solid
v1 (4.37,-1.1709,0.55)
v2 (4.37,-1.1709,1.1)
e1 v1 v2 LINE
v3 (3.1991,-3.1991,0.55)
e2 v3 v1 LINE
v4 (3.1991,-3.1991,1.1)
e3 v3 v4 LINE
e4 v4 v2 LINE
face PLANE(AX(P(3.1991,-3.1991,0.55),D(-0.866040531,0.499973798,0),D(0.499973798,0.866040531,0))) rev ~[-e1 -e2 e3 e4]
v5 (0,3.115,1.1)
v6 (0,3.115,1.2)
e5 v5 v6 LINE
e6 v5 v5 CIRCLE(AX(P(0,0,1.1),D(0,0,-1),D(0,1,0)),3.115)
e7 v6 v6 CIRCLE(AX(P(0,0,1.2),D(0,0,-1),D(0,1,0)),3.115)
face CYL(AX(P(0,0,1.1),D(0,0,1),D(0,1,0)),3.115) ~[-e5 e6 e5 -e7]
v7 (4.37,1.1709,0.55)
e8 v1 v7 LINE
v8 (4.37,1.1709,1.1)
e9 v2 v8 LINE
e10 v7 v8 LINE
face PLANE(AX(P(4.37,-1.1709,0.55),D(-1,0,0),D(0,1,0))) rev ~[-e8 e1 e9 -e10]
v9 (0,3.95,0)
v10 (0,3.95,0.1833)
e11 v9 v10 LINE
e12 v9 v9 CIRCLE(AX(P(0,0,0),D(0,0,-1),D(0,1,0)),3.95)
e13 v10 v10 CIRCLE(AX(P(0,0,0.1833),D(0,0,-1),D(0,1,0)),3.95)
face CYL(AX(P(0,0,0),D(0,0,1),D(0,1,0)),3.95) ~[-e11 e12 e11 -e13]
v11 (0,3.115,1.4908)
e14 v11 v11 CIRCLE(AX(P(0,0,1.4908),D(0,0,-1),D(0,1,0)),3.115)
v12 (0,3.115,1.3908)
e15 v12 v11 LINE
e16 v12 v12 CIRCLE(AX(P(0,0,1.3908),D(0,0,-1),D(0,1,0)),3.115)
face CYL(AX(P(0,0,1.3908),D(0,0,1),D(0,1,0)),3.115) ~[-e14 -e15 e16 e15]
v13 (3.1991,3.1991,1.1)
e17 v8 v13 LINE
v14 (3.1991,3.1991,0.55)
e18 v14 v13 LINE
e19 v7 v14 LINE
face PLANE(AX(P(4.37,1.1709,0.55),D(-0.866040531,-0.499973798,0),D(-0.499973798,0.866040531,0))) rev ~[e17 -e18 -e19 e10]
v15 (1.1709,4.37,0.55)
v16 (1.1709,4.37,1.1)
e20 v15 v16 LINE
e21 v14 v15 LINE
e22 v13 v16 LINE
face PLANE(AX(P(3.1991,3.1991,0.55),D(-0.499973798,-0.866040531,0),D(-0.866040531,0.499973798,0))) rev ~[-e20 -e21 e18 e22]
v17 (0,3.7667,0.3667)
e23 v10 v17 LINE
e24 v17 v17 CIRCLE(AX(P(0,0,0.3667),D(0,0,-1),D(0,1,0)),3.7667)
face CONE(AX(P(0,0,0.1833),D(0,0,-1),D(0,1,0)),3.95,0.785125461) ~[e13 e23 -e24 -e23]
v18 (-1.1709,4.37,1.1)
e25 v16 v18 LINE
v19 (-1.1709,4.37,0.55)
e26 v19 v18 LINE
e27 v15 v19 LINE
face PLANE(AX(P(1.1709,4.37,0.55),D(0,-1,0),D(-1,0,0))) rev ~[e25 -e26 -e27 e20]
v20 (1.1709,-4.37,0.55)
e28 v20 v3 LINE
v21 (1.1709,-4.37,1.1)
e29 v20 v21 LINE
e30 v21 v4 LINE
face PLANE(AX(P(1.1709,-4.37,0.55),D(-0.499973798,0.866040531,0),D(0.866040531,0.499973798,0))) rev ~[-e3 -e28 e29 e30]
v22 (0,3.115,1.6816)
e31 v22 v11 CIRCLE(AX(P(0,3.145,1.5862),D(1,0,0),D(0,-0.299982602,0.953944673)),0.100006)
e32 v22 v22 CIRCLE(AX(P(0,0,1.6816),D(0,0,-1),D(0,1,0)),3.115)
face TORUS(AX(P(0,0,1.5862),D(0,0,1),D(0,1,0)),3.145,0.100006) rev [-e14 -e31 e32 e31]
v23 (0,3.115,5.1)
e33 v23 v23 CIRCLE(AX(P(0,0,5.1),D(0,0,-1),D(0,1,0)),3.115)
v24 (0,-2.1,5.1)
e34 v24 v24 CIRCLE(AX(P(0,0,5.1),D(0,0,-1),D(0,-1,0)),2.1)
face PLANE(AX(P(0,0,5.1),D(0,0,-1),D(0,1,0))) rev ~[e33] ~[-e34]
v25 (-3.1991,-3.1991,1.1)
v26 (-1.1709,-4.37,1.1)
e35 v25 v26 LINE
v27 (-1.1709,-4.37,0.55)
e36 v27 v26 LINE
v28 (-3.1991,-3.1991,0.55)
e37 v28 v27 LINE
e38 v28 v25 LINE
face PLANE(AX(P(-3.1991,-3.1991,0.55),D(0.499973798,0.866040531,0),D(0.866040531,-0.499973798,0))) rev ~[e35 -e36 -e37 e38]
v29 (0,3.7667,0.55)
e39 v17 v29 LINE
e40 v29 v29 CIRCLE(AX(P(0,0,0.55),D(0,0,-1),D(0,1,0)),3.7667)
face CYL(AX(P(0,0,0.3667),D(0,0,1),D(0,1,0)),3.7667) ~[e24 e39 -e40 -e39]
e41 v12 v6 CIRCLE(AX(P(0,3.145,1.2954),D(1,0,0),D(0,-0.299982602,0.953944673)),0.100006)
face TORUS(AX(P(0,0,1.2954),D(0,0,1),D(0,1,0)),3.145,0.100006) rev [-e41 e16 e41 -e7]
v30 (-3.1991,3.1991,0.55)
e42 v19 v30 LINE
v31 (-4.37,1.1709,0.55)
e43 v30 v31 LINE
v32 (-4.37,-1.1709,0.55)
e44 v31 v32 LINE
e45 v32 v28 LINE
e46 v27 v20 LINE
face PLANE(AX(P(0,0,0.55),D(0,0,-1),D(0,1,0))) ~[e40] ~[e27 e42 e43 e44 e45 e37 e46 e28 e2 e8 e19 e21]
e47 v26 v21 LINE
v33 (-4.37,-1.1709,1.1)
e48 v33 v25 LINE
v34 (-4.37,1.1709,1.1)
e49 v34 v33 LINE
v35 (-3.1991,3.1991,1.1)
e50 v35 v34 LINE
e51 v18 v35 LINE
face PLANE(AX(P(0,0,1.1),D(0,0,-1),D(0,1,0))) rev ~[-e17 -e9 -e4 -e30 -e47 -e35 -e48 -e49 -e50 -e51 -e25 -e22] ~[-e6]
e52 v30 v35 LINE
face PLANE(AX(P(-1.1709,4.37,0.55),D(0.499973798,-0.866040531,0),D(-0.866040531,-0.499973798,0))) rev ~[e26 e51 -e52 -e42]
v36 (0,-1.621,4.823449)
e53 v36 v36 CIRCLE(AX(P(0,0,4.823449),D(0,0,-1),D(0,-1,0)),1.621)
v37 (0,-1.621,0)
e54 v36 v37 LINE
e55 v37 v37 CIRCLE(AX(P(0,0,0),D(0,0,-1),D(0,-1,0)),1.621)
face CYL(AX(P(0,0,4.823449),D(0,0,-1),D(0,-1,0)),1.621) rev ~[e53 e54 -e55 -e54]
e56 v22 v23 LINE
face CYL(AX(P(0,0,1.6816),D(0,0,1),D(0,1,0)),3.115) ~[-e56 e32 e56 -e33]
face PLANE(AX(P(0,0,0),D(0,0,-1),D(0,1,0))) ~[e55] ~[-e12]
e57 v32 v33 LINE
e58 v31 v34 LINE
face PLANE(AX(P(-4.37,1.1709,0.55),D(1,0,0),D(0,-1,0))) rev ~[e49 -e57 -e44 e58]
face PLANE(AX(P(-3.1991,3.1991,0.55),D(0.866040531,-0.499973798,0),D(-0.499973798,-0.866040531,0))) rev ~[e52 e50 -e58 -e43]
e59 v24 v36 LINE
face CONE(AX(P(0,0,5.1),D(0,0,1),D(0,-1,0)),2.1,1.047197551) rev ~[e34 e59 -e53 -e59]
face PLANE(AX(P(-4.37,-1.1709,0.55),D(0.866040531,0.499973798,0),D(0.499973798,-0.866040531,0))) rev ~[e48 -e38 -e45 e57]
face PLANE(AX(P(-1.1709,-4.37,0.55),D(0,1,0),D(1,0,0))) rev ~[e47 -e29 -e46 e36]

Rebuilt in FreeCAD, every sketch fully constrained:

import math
import FreeCAD as App
import Part
import Sketcher
Q = App.Units.Quantity


def add_polygon(sketch, points):
    """Adds a closed chain of lines whose ends are joined by coincident constraints."""
    first, n = sketch.GeometryCount, len(points)
    for a, b in zip(points, points[1:] + points[:1]):
        sketch.addGeometry(Part.LineSegment(App.Vector(*a, 0), App.Vector(*b, 0)), False)
    for i in range(n):
        sketch.addConstraint(Sketcher.Constraint("Coincident", first + i, 2, first + (i + 1) % n, 1))

doc = App.newDocument("Part")
body = doc.addObject("PartDesign::Body", "Body")

sketch1 = body.newObject("Sketcher::SketchObject", "Sketch")
sketch1.AttachmentSupport = (doc.getObject("YZ_Plane"), [""])
sketch1.MapMode = "FlatFace"
sketch1.addGeometry([
    Part.LineSegment(App.Vector(0, 5.1, 0), App.Vector(0, 0, 0)),
    Part.LineSegment(App.Vector(0, 0, 0), App.Vector(3.95, 0, 0)),
    Part.LineSegment(App.Vector(3.95, 0, 0), App.Vector(3.95, 0.1833, 0)),
    Part.LineSegment(App.Vector(3.95, 0.1833, 0), App.Vector(3.7667, 0.3667, 0)),
    Part.LineSegment(App.Vector(3.7667, 0.3667, 0), App.Vector(3.7667, 0.55, 0)),
    Part.LineSegment(App.Vector(3.7667, 0.55, 0), App.Vector(6.555, 0.55, 0)),
    Part.LineSegment(App.Vector(6.555, 0.55, 0), App.Vector(6.555, 1.1, 0)),
    Part.LineSegment(App.Vector(6.555, 1.1, 0), App.Vector(3.115, 1.1, 0)),
    Part.LineSegment(App.Vector(3.115, 1.1, 0), App.Vector(3.115, 1.2, 0)),
    Part.ArcOfCircle(Part.Circle(App.Vector(3.145, 1.2954, 0), App.Vector(0, 0, 1), 0.100006), math.radians(107.456558), math.radians(252.543442)),
    Part.LineSegment(App.Vector(3.115, 1.3908, 0), App.Vector(3.115, 1.4908, 0)),
    Part.ArcOfCircle(Part.Circle(App.Vector(3.145, 1.5862, 0), App.Vector(0, 0, 1), 0.100006), math.radians(107.456558), math.radians(252.543442)),
    Part.LineSegment(App.Vector(3.115, 1.6816, 0), App.Vector(3.115, 5.1, 0)),
    Part.LineSegment(App.Vector(3.115, 5.1, 0), App.Vector(0, 5.1, 0)),
], False)
sketch1.addConstraint([
    Sketcher.Constraint("Coincident", 0, 2, 1, 1),
    Sketcher.Constraint("Coincident", 1, 2, 2, 1),
    Sketcher.Constraint("Coincident", 2, 2, 3, 1),
    Sketcher.Constraint("Coincident", 3, 2, 4, 1),
    Sketcher.Constraint("Coincident", 4, 2, 5, 1),
    Sketcher.Constraint("Coincident", 5, 2, 6, 1),
    Sketcher.Constraint("Coincident", 6, 2, 7, 1),
    Sketcher.Constraint("Coincident", 7, 2, 8, 1),
    Sketcher.Constraint("Coincident", 8, 2, 9, 2),
    Sketcher.Constraint("Coincident", 9, 1, 10, 1),
    Sketcher.Constraint("Coincident", 10, 2, 11, 2),
    Sketcher.Constraint("Coincident", 11, 1, 12, 1),
    Sketcher.Constraint("Coincident", 12, 2, 13, 1),
    Sketcher.Constraint("Coincident", 13, 2, 0, 1),
    Sketcher.Constraint("Vertical", 0),
    Sketcher.Constraint("Horizontal", 1),
    Sketcher.Constraint("Vertical", 2),
    Sketcher.Constraint("Vertical", 4),
    Sketcher.Constraint("Horizontal", 5),
    Sketcher.Constraint("Vertical", 6),
    Sketcher.Constraint("Horizontal", 7),
    Sketcher.Constraint("Vertical", 8),
    Sketcher.Constraint("Vertical", 10),
    Sketcher.Constraint("Vertical", 12),
    Sketcher.Constraint("Horizontal", 13),
    Sketcher.Constraint("Coincident", 0, 2, -1, 1),
    Sketcher.Constraint("Equal", 9, 11),
    Sketcher.Constraint("Vertical", 9, 3, 11, 3),
    Sketcher.Constraint("Vertical", 8, 2, 9, 1),
    Sketcher.Constraint("Vertical", 10, 2, 11, 1),
    Sketcher.Constraint("Equal", 2, 4),
    Sketcher.Constraint("Equal", 8, 10),
    Sketcher.Constraint("Radius", 9, Q("0.1 mm")),
    Sketcher.Constraint("DistanceY", 8, 1, 8, 2, Q("0.1 mm")),
    Sketcher.Constraint("DistanceY", 6, 1, 6, 2, Q("0.55 mm")),
    Sketcher.Constraint("DistanceY", -1, 1, 6, 2, Q("1.1 mm")),
    Sketcher.Constraint("DistanceX", 7, 2, 9, 3, Q("0.03 mm")),
    Sketcher.Constraint("DistanceY", 0, 2, 0, 1, Q("5.1 mm")),
    Sketcher.Constraint("DistanceY", 2, 1, 2, 2, Q("0.1833 mm")),
    Sketcher.Constraint("DistanceX", 1, 1, 1, 2, Q("3.95 mm")),
    Sketcher.Constraint("DistanceX", 7, 2, 7, 1, Q("3.44 mm")),
    Sketcher.Constraint("DistanceX", 3, 2, 2, 2, Q("0.1833 mm")),
    Sketcher.Constraint("DistanceX", 13, 2, 13, 1, Q("3.115 mm")),
])
revolution = body.newObject("PartDesign::Revolution", "Revolution")
revolution.Profile = sketch1
revolution.ReferenceAxis = (sketch1, ["V_Axis"])
revolution.Angle = 360

sketch2 = body.newObject("Sketcher::SketchObject", "Sketch001")
sketch2.AttachmentSupport = (doc.getObject("XY_Plane"), [""])
sketch2.MapMode = "FlatFace"
sketch2.AttachmentOffset = App.Placement(App.Vector(0, 0, 0.55), App.Rotation())
sketch2.addGeometry(Part.Circle(App.Vector(0, 0, 0), App.Vector(0, 0, 1), 6.555), False)
add_polygon(sketch2, [(1.1709, 4.37), (-1.1709, 4.37), (-3.1991, 3.1991), (-4.37, 1.1709), (-4.37, -1.1709), (-3.1991, -3.1991), (-1.1709, -4.37), (1.1709, -4.37), (3.1991, -3.1991), (4.37, -1.1709), (4.37, 1.1709), (3.1991, 3.1991)])
sketch2.addConstraint([
    Sketcher.Constraint("Horizontal", 1),
    Sketcher.Constraint("Vertical", 4),
    Sketcher.Constraint("Horizontal", 7),
    Sketcher.Constraint("Vertical", 10),
    Sketcher.Constraint("Coincident", 0, 3, -1, 1),
    Sketcher.Constraint("Symmetric", 1, 2, 7, 2, -1, 1),
    Sketcher.Constraint("Symmetric", 2, 2, 8, 2, -1, 1),
    Sketcher.Constraint("Symmetric", 3, 2, 9, 2, -1, 1),
    Sketcher.Constraint("Symmetric", 5, 2, 11, 2, -1, 1),
    Sketcher.Constraint("Symmetric", 5, 2, 8, 2, -2),
    Sketcher.Constraint("Perpendicular", 2, 5),
    Sketcher.Constraint("Perpendicular", 3, 6),
    Sketcher.Constraint("Perpendicular", 8, 11),
    Sketcher.Constraint("Perpendicular", 9, 12),
    Sketcher.Constraint("Horizontal", 4, 2, 9, 2),
    Sketcher.Constraint("Equal", 7, 4),
    Sketcher.Constraint("Equal", 2, 3),
    Sketcher.Constraint("Diameter", 0, Q("13.11 mm")),
    Sketcher.Constraint("DistanceY", -1, 1, 1, 2, Q("4.37 mm")),
    Sketcher.Constraint("DistanceY", 4, 2, 2, 2, Q("4.37 mm")),
    Sketcher.Constraint("Distance", 2, Q("2.342 mm")),
])
pocket1 = body.newObject("PartDesign::Pocket", "Pocket")
pocket1.Profile = sketch2
pocket1.Type = "ThroughAll"
pocket1.Reversed = True

sketch3 = body.newObject("Sketcher::SketchObject", "Sketch002")
sketch3.AttachmentSupport = (doc.getObject("XY_Plane"), [""])
sketch3.MapMode = "FlatFace"
sketch3.AttachmentOffset = App.Placement(App.Vector(0, 0, 5.1), App.Rotation())
sketch3.addGeometry(Part.Circle(App.Vector(0, 0, 0), App.Vector(0, 0, 1), 1.621), False)
sketch3.addConstraint([
    Sketcher.Constraint("Coincident", 0, 3, -1, 1),
    Sketcher.Constraint("Diameter", 0, Q("3.242 mm")),
])
doc.recompute()
hole = body.newObject("PartDesign::Hole", "Hole")
hole.Profile = sketch3
hole.ThreadType = "None"
hole.Diameter = 3.242
hole.DepthType = "ThroughAll"
hole.HoleCutType = "Countersink"
hole.HoleCutDiameter = 4.2
hole.HoleCutCountersinkAngle = 120

doc.recompute()
